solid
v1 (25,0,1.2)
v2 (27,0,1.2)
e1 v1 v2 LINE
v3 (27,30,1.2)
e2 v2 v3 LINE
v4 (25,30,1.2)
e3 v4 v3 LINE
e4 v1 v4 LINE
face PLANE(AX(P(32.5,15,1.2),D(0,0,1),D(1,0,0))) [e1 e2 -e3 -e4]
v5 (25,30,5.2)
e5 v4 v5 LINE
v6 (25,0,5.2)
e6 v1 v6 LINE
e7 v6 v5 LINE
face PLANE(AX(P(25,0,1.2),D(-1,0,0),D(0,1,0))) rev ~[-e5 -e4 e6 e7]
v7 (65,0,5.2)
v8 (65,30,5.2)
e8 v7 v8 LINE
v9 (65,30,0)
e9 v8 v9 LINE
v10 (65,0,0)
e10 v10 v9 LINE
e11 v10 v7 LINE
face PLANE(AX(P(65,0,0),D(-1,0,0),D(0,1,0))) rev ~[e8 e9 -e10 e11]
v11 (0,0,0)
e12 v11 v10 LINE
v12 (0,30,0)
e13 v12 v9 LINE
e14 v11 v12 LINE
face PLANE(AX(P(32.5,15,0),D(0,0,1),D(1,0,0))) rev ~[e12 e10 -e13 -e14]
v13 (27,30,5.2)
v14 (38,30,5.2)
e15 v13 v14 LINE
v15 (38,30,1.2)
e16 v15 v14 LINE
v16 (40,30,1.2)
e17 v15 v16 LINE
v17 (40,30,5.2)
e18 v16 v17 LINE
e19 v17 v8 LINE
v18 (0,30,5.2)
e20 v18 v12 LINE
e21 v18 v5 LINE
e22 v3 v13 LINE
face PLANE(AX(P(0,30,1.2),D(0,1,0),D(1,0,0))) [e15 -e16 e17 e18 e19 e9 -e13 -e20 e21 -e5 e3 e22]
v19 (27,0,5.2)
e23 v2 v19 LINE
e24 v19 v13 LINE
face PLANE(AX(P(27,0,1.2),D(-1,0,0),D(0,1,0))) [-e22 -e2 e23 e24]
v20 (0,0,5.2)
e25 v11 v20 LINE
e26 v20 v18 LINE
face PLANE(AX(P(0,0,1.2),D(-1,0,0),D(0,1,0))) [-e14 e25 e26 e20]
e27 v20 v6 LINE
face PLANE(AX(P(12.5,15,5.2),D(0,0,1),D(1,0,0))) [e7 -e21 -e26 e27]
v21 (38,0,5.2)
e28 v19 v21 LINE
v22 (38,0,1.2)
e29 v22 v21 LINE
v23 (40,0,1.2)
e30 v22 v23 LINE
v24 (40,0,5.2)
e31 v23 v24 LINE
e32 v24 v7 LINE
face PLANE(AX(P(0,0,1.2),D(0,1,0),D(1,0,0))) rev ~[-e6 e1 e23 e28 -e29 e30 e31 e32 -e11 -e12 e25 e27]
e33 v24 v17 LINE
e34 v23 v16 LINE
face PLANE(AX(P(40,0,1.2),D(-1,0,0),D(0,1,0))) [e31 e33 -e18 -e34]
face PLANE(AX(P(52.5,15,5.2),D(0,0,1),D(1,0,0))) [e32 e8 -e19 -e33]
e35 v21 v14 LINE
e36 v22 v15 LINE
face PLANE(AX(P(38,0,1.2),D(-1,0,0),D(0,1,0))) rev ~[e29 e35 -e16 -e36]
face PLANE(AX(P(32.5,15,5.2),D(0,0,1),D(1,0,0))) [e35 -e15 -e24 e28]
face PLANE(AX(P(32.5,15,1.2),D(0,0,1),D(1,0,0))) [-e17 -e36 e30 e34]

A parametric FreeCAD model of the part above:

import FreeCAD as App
import Part
import Sketcher

V = App.Vector

doc = App.newDocument("Part")
body = doc.addObject("PartDesign::Body", "Body")

# Sketch on XY plane
sketch1 = body.newObject("Sketcher::SketchObject", "Sketch")
sketch1.AttachmentSupport = (doc.getObject("XY_Plane"), [""])
sketch1.MapMode = "FlatFace"
sketch1.addGeometry([
    Part.LineSegment(V(0, 30, 0), V(0, 0, 0)),
    Part.LineSegment(V(0, 0, 0), V(65, 0, 0)),
    Part.LineSegment(V(65, 0, 0), V(65, 30, 0)),
    Part.LineSegment(V(65, 30, 0), V(0, 30, 0)),
], False)
sketch1.addConstraint([
    Sketcher.Constraint("Coincident", 0, 2, 1, 1),
    Sketcher.Constraint("Coincident", 1, 2, 2, 1),
    Sketcher.Constraint("Coincident", 2, 2, 3, 1),
    Sketcher.Constraint("Coincident", 3, 2, 0, 1),
    Sketcher.Constraint("Vertical", 0),
    Sketcher.Constraint("Horizontal", 1),
    Sketcher.Constraint("Vertical", 2),
    Sketcher.Constraint("Horizontal", 3),
    Sketcher.Constraint("Coincident", 0, 2, -1, 1),
    Sketcher.Constraint("DistanceX", 1, 1, 1, 2, 65.0),
    Sketcher.Constraint("DistanceY", 0, 2, 0, 1, 30.0),
])
pad1 = body.newObject("PartDesign::Pad", "Pad")
pad1.Profile = sketch1
pad1.Length = 1.2

# Sketch on XY plane
sketch2 = body.newObject("Sketcher::SketchObject", "Sketch001")
sketch2.AttachmentSupport = (doc.getObject("XY_Plane"), [""])
sketch2.MapMode = "FlatFace"
sketch2.AttachmentOffset = App.Placement(V(0, 0, 1.2), App.Rotation())
sketch2.addGeometry([
    Part.LineSegment(V(0, 30, 0), V(0, 0, 0)),  # 0
    Part.LineSegment(V(0, 0, 0), V(25, 0, 0)),  # 1
    Part.LineSegment(V(25, 0, 0), V(25, 30, 0)),  # 2
    Part.LineSegment(V(25, 30, 0), V(0, 30, 0)),  # 3
    Part.LineSegment(V(40, 30, 0), V(40, 0, 0)),  # 4
    Part.LineSegment(V(40, 0, 0), V(65, 0, 0)),  # 5
    Part.LineSegment(V(65, 0, 0), V(65, 30, 0)),  # 6
    Part.LineSegment(V(65, 30, 0), V(40, 30, 0)),  # 7
    Part.LineSegment(V(27, 30, 0), V(27, 0, 0)),  # 8
    Part.LineSegment(V(27, 0, 0), V(38, 0, 0)),  # 9
    Part.LineSegment(V(38, 0, 0), V(38, 30, 0)),  # 10
    Part.LineSegment(V(38, 30, 0), V(27, 30, 0)),  # 11
], False)
sketch2.addConstraint([
    Sketcher.Constraint("Coincident", 0, 2, 1, 1),
    Sketcher.Constraint("Coincident", 1, 2, 2, 1),
    Sketcher.Constraint("Coincident", 2, 2, 3, 1),
    Sketcher.Constraint("Coincident", 3, 2, 0, 1),
    Sketcher.Constraint("Coincident", 4, 2, 5, 1),
    Sketcher.Constraint("Coincident", 5, 2, 6, 1),
    Sketcher.Constraint("Coincident", 6, 2, 7, 1),
    Sketcher.Constraint("Coincident", 7, 2, 4, 1),
    Sketcher.Constraint("Coincident", 8, 2, 9, 1),
    Sketcher.Constraint("Coincident", 9, 2, 10, 1),
    Sketcher.Constraint("Coincident", 10, 2, 11, 1),
    Sketcher.Constraint("Coincident", 11, 2, 8, 1),
    Sketcher.Constraint("Vertical", 0),
    Sketcher.Constraint("Horizontal", 1),
    Sketcher.Constraint("Vertical", 2),
    Sketcher.Constraint("Horizontal", 3),
    Sketcher.Constraint("Vertical", 4),
    Sketcher.Constraint("Horizontal", 5),
    Sketcher.Constraint("Vertical", 6),
    Sketcher.Constraint("Horizontal", 7),
    Sketcher.Constraint("Vertical", 8),
    Sketcher.Constraint("Horizontal", 9),
    Sketcher.Constraint("Vertical", 10),
    Sketcher.Constraint("Horizontal", 11),
    Sketcher.Constraint("Coincident", 0, 2, -1, 1),
    Sketcher.Constraint("PointOnObject", 4, 2, -1),
    Sketcher.Constraint("PointOnObject", 8, 2, -1),
    Sketcher.Constraint("Horizontal", 3, 2, 6, 2),
    Sketcher.Constraint("Horizontal", 7, 2, 10, 2),
    Sketcher.Constraint("Equal", 3, 5),
    Sketcher.Constraint("DistanceX", 1, 1, 1, 2, 25.0),
    Sketcher.Constraint("DistanceX", 9, 1, 9, 2, 11.0),
    Sketcher.Constraint("DistanceY", 0, 2, 0, 1, 30.0),
    Sketcher.Constraint("DistanceX", -1, 1, 4, 2, 40.0),
    Sketcher.Constraint("DistanceX", -1, 1, 8, 2, 27.0),
])
pad2 = body.newObject("PartDesign::Pad", "Pad001")
pad2.Profile = sketch2
pad2.Length = 4

doc.recompute()
